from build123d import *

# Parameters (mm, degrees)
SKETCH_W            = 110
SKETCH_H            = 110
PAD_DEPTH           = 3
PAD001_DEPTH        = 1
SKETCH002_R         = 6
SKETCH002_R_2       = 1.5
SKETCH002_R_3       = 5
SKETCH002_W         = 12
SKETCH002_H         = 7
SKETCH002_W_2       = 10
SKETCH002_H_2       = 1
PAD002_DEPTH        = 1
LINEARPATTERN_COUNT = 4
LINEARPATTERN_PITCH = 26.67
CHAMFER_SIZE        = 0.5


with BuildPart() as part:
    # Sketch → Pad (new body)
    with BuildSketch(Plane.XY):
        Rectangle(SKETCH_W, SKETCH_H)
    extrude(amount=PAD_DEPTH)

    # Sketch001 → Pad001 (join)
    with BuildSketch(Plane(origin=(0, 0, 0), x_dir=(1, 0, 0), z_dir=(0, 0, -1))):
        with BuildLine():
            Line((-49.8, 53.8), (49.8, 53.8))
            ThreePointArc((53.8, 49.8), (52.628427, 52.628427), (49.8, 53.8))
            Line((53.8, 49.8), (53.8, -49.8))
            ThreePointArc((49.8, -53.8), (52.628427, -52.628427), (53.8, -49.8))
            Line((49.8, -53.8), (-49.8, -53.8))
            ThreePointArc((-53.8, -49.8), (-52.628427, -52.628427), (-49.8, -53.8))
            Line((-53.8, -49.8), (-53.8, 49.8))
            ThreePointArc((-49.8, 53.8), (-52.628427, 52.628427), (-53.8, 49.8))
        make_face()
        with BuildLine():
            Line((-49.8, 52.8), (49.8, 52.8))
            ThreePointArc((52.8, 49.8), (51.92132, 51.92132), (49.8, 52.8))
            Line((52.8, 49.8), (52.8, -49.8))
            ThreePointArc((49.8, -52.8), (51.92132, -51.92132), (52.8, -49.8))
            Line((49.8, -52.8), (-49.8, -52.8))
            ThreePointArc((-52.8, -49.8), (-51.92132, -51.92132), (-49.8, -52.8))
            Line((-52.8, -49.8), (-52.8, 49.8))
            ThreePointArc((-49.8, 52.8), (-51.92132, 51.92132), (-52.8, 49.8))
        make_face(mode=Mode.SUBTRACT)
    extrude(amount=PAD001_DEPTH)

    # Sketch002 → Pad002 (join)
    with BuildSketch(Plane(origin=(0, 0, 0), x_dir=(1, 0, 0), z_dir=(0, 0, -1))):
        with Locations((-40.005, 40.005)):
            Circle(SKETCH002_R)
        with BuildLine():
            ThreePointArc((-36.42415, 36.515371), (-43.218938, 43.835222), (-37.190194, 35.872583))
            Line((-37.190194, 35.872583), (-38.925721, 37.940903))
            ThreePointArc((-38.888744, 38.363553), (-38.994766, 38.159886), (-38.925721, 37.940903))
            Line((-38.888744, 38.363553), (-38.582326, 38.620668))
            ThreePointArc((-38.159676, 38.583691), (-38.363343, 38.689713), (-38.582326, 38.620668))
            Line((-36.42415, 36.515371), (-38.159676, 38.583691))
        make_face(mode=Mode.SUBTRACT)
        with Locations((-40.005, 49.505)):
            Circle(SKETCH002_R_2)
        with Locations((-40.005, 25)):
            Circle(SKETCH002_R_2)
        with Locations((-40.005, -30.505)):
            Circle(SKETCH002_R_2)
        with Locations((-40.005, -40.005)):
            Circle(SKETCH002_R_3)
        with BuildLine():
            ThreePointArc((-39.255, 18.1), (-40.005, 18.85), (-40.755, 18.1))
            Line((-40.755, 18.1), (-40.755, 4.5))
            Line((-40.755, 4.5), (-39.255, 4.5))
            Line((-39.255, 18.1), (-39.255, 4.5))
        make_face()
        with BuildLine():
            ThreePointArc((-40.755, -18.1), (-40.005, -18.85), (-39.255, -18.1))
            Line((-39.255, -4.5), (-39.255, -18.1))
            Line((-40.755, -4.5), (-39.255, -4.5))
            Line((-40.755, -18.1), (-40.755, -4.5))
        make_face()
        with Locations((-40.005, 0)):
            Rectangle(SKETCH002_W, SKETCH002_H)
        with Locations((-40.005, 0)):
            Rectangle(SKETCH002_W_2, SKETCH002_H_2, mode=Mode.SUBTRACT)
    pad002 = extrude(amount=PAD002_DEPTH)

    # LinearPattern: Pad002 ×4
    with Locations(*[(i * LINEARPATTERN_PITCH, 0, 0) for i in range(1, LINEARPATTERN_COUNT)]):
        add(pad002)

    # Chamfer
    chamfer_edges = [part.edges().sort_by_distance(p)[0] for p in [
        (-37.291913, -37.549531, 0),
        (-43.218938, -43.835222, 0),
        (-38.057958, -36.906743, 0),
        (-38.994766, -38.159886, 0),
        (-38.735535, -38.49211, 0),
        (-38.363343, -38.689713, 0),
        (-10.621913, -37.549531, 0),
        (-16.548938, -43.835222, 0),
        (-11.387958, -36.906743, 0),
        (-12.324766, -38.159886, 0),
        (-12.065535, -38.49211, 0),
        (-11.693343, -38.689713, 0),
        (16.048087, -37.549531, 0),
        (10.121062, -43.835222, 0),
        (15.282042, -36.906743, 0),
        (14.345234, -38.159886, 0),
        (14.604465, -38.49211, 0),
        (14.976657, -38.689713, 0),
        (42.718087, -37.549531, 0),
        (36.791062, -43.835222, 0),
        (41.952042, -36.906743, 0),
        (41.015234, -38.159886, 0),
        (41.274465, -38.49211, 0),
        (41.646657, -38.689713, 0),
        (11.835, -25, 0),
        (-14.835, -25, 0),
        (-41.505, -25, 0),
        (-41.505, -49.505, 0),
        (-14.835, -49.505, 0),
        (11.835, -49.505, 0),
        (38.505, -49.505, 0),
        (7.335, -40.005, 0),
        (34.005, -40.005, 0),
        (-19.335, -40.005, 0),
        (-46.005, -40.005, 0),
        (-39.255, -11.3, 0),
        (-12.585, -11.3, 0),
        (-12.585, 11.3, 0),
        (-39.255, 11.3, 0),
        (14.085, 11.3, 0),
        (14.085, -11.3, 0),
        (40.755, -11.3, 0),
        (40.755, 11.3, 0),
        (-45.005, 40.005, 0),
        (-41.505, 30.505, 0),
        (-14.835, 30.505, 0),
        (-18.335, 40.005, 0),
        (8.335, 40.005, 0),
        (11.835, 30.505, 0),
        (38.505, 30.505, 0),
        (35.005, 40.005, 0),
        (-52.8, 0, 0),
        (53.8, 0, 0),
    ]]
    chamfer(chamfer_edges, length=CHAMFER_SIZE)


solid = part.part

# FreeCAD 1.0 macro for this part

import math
import FreeCAD as App
import Part
import Sketcher

V = App.Vector
Q = App.Units.Quantity


def edges_at(feature, points):
    """Names of the edges that pass closest to the given points."""
    edges = feature.Shape.Edges
    near = lambda p: min(range(len(edges)), key=lambda i: edges[i].distToShape(Part.Vertex(*p))[0])
    return sorted({f"Edge{near(p) + 1}" for p in points})

doc = App.newDocument("Part")
params = doc.addObject("Spreadsheet::Sheet", "Params")
for row, (alias, value) in enumerate([
    ("sketch1_width", "110 mm"),
    ("pad1_length", "3 mm"),
    ("sketch2_radius", "4 mm"),
    ("sketch2_radius2", "3.000001 mm"),
    ("sketch2_width", "99.6 mm"),
    ("pad2_length", "1 mm"),
    ("sketch3_diameter", "12 mm"),
    ("sketch3_diameter2", "3 mm"),
    ("sketch3_diameter3", "10 mm"),
    ("sketch3_radius", "0.300001 mm"),
    ("sketch3_width", "12 mm"),
    ("pad3_length", "1 mm"),
    ("linearpattern_pitch", "26.67 mm"),
    ("chamfer_size", "0.5 mm"),
], start=1):
    params.set(f"A{row}", alias)
    params.set(f"B{row}", "=" + value)
    params.setAlias(f"B{row}", alias)

body = doc.addObject("PartDesign::Body", "Body")

# Sketch on XY plane
sketch1 = body.newObject("Sketcher::SketchObject", "Sketch")
sketch1.AttachmentSupport = (doc.getObject("XY_Plane"), [""])
sketch1.MapMode = "FlatFace"
sketch1.addGeometry(Part.LineSegment(V(-55, 55, 0), V(-55, -55, 0)), False)
sketch1.addGeometry(Part.LineSegment(V(-55, -55, 0), V(55, -55, 0)), False)
sketch1.addGeometry(Part.LineSegment(V(55, -55, 0), V(55, 55, 0)), False)
sketch1.addGeometry(Part.LineSegment(V(55, 55, 0), V(-55, 55, 0)), False)
sketch1.addConstraint(Sketcher.Constraint("Coincident", 0, 2, 1, 1))
sketch1.addConstraint(Sketcher.Constraint("Coincident", 1, 2, 2, 1))
sketch1.addConstraint(Sketcher.Constraint("Coincident", 2, 2, 3, 1))
sketch1.addConstraint(Sketcher.Constraint("Coincident", 3, 2, 0, 1))
sketch1.addConstraint(Sketcher.Constraint("Vertical", 0))
sketch1.addConstraint(Sketcher.Constraint("Horizontal", 1))
sketch1.addConstraint(Sketcher.Constraint("Vertical", 2))
sketch1.addConstraint(Sketcher.Constraint("Horizontal", 3))
sketch1.addConstraint(Sketcher.Constraint("Symmetric", 0, 2, 2, 2, -1, 1))
sketch1.addConstraint(Sketcher.Constraint("Equal", 3, 0))
sketch1.addConstraint(Sketcher.Constraint("DistanceX", 1, 1, 1, 2, 110.0))
sketch1.setExpression("Constraints[10]", "Params.sketch1_width")
pad1 = body.newObject("PartDesign::Pad", "Pad")
pad1.Profile = sketch1
pad1.setExpression("Length", "Params.pad1_length")

# Sketch on XY plane
sketch2 = body.newObject("Sketcher::SketchObject", "Sketch001")
sketch2.AttachmentSupport = (doc.getObject("XY_Plane"), [""])
sketch2.MapMode = "FlatFace"
sketch2.addGeometry(Part.LineSegment(V(49.8, -53.8, 0), V(-49.8, -53.8, 0)), False)
sketch2.addGeometry(Part.ArcOfCircle(Part.Circle(V(-49.8, -49.8, 0), V(0, 0, 1), 4), math.radians(-180), math.radians(-90)), False)
sketch2.addGeometry(Part.LineSegment(V(-53.8, -49.8, 0), V(-53.8, 49.8, 0)), False)
sketch2.addGeometry(Part.ArcOfCircle(Part.Circle(V(-49.8, 49.8, 0), V(0, 0, 1), 4), math.radians(90), math.radians(180)), False)
sketch2.addGeometry(Part.LineSegment(V(-49.8, 53.8, 0), V(49.8, 53.8, 0)), False)
sketch2.addGeometry(Part.ArcOfCircle(Part.Circle(V(49.8, 49.8, 0), V(0, 0, 1), 4), math.radians(0), math.radians(90)), False)
sketch2.addGeometry(Part.LineSegment(V(53.8, 49.8, 0), V(53.8, -49.8, 0)), False)
sketch2.addGeometry(Part.ArcOfCircle(Part.Circle(V(49.8, -49.8, 0), V(0, 0, 1), 4), math.radians(-90), math.radians(0)), False)
sketch2.addGeometry(Part.LineSegment(V(-49.8, -52.8, 0), V(49.8, -52.8, 0)), False)
sketch2.addGeometry(Part.ArcOfCircle(Part.Circle(V(49.8, -49.8, 0), V(0, 0, 1), 3), math.radians(-90), math.radians(0)), False)
sketch2.addGeometry(Part.LineSegment(V(52.8, -49.8, 0), V(52.8, 49.8, 0)), False)
sketch2.addGeometry(Part.ArcOfCircle(Part.Circle(V(49.8, 49.8, 0), V(0, 0, 1), 3), math.radians(0), math.radians(90)), False)
sketch2.addGeometry(Part.LineSegment(V(49.8, 52.8, 0), V(-49.8, 52.8, 0)), False)
sketch2.addGeometry(Part.ArcOfCircle(Part.Circle(V(-49.8, 49.8, 0), V(0, 0, 1), 3), math.radians(90), math.radians(180)), False)
sketch2.addGeometry(Part.LineSegment(V(-52.8, 49.8, 0), V(-52.8, -49.8, 0)), False)
sketch2.addGeometry(Part.ArcOfCircle(Part.Circle(V(-49.8, -49.8, 0), V(0, 0, 1), 3), math.radians(-180), math.radians(-90)), False)
sketch2.addConstraint(Sketcher.Constraint("Tangent", 0, 2, 1, 2))
sketch2.addConstraint(Sketcher.Constraint("Tangent", 1, 1, 2, 1))
sketch2.addConstraint(Sketcher.Constraint("Tangent", 2, 2, 3, 2))
sketch2.addConstraint(Sketcher.Constraint("Tangent", 3, 1, 4, 1))
sketch2.addConstraint(Sketcher.Constraint("Tangent", 4, 2, 5, 2))
sketch2.addConstraint(Sketcher.Constraint("Tangent", 5, 1, 6, 1))
sketch2.addConstraint(Sketcher.Constraint("Tangent", 6, 2, 7, 2))
sketch2.addConstraint(Sketcher.Constraint("Tangent", 7, 1, 0, 1))
sketch2.addConstraint(Sketcher.Constraint("Tangent", 8, 2, 9, 1))
sketch2.addConstraint(Sketcher.Constraint("Tangent", 9, 2, 10, 1))
sketch2.addConstraint(Sketcher.Constraint("Tangent", 10, 2, 11, 1))
sketch2.addConstraint(Sketcher.Constraint("Tangent", 11, 2, 12, 1))
sketch2.addConstraint(Sketcher.Constraint("Tangent", 12, 2, 13, 1))
sketch2.addConstraint(Sketcher.Constraint("Tangent", 13, 2, 14, 1))
sketch2.addConstraint(Sketcher.Constraint("Tangent", 14, 2, 15, 1))
sketch2.addConstraint(Sketcher.Constraint("Tangent", 15, 2, 8, 1))
sketch2.addConstraint(Sketcher.Constraint("Horizontal", 0))
sketch2.addConstraint(Sketcher.Constraint("Vertical", 2))
sketch2.addConstraint(Sketcher.Constraint("Horizontal", 4))
sketch2.addConstraint(Sketcher.Constraint("Vertical", 6))
sketch2.addConstraint(Sketcher.Constraint("Horizontal", 8))
sketch2.addConstraint(Sketcher.Constraint("Vertical", 10))
sketch2.addConstraint(Sketcher.Constraint("Horizontal", 12))
sketch2.addConstraint(Sketcher.Constraint("Vertical", 14))
sketch2.addConstraint(Sketcher.Constraint("Coincident", 9, 3, 7, 3))
sketch2.addConstraint(Sketcher.Constraint("Coincident", 11, 3, 5, 3))
sketch2.addConstraint(Sketcher.Constraint("Coincident", 13, 3, 3, 3))
sketch2.addConstraint(Sketcher.Constraint("Equal", 1, 3))
sketch2.addConstraint(Sketcher.Constraint("Equal", 3, 5))
sketch2.addConstraint(Sketcher.Constraint("Equal", 5, 7))
sketch2.addConstraint(Sketcher.Constraint("Equal", 13, 15))
sketch2.addConstraint(Sketcher.Constraint("Symmetric", 1, 3, 5, 3, -1, 1))
sketch2.addConstraint(Sketcher.Constraint("Equal", 12, 2))
sketch2.addConstraint(Sketcher.Constraint("Radius", 1, 4.0))
sketch2.addConstraint(Sketcher.Constraint("Radius", 9, 3.000001))
sketch2.addConstraint(Sketcher.Constraint("DistanceX", 0, 2, 0, 1, 99.6))
sketch2.setExpression("Constraints[33]", "Params.sketch2_radius")
sketch2.setExpression("Constraints[34]", "Params.sketch2_radius2")
sketch2.setExpression("Constraints[35]", "Params.sketch2_width")
pad2 = body.newObject("PartDesign::Pad", "Pad001")
pad2.Profile = sketch2
pad2.setExpression("Length", "Params.pad2_length")
pad2.Reversed = True

# Sketch on XY plane
sketch3 = body.newObject("Sketcher::SketchObject", "Sketch002")
sketch3.AttachmentSupport = (doc.getObject("XY_Plane"), [""])
sketch3.MapMode = "FlatFace"
sketch3.addGeometry(Part.Circle(V(-40.01, -40.01, 0), V(0, 0, 1), 6), False)
sketch3.addGeometry(Part.ArcOfCircle(Part.Circle(V(-40.01, -40, 0), V(0, 0, 1), 5), math.radians(56), math.radians(404)), False)
sketch3.addGeometry(Part.LineSegment(V(-36.42, -36.52, 0), V(-38.16, -38.58, 0)), False)
sketch3.addGeometry(Part.ArcOfCircle(Part.Circle(V(-38.39, -38.39, 0), V(0, 0, 1), 0.3), math.radians(-130), math.radians(-40)), False)
sketch3.addGeometry(Part.LineSegment(V(-38.58, -38.62, 0), V(-38.89, -38.36, 0)), False)
sketch3.addGeometry(Part.ArcOfCircle(Part.Circle(V(-38.7, -38.13, 0), V(0, 0, 1), 0.3), math.radians(140), math.radians(230)), False)
sketch3.addGeometry(Part.LineSegment(V(-38.93, -37.94, 0), V(-37.19, -35.87, 0)), False)
sketch3.addGeometry(Part.Circle(V(-40.01, -49.51, 0), V(0, 0, 1), 1.5), False)
sketch3.addGeometry(Part.Circle(V(-40.01, -25, 0), V(0, 0, 1), 1.5), False)
sketch3.addGeometry(Part.Circle(V(-40.01, 30.5, 0), V(0, 0, 1), 1.5), False)
sketch3.addGeometry(Part.Circle(V(-40.01, 40.01, 0), V(0, 0, 1), 5), False)
sketch3.addGeometry(Part.ArcOfCircle(Part.Circle(V(-40.01, -18.1, 0), V(0, 0, 1), 0.75), math.radians(180), math.radians(360)), False)
sketch3.addGeometry(Part.LineSegment(V(-40.76, -18.1, 0), V(-40.76, -4.5, 0)), False)
sketch3.addGeometry(Part.LineSegment(V(-40.76, -4.5, 0), V(-39.26, -4.5, 0)), False)
sketch3.addGeometry(Part.LineSegment(V(-39.26, -4.5, 0), V(-39.26, -18.1, 0)), False)
sketch3.addGeometry(Part.ArcOfCircle(Part.Circle(V(-40.01, 18.1, 0), V(0, 0, 1), 0.75), math.radians(0), math.radians(180)), False)
sketch3.addGeometry(Part.LineSegment(V(-39.26, 18.1, 0), V(-39.26, 4.5, 0)), False)
sketch3.addGeometry(Part.LineSegment(V(-39.26, 4.5, 0), V(-40.76, 4.5, 0)), False)
sketch3.addGeometry(Part.LineSegment(V(-40.76, 4.5, 0), V(-40.76, 18.1, 0)), False)
sketch3.addGeometry(Part.LineSegment(V(-46.01, -3.5, 0), V(-46.01, 3.5, 0)), False)
sketch3.addGeometry(Part.LineSegment(V(-46.01, 3.5, 0), V(-34.01, 3.5, 0)), False)
sketch3.addGeometry(Part.LineSegment(V(-34.01, 3.5, 0), V(-34.01, -3.5, 0)), False)
sketch3.addGeometry(Part.LineSegment(V(-34.01, -3.5, 0), V(-46.01, -3.5, 0)), False)
sketch3.addGeometry(Part.LineSegment(V(-35.01, 0.5, 0), V(-45.01, 0.5, 0)), False)
sketch3.addGeometry(Part.LineSegment(V(-45.01, 0.5, 0), V(-45.01, -0.5, 0)), False)
sketch3.addGeometry(Part.LineSegment(V(-45.01, -0.5, 0), V(-35.01, -0.5, 0)), False)
sketch3.addGeometry(Part.LineSegment(V(-35.01, -0.5, 0), V(-35.01, 0.5, 0)), False)
sketch3.addConstraint(Sketcher.Constraint("Coincident", 1, 2, 2, 1))
sketch3.addConstraint(Sketcher.Constraint("Tangent", 2, 2, 3, 2))
sketch3.addConstraint(Sketcher.Constraint("Tangent", 3, 1, 4, 1))
sketch3.addConstraint(Sketcher.Constraint("Coincident", 4, 2, 5, 2))
sketch3.addConstraint(Sketcher.Constraint("Tangent", 5, 1, 6, 1))
sketch3.addConstraint(Sketcher.Constraint("Coincident", 6, 2, 1, 1))
sketch3.addConstraint(Sketcher.Constraint("Tangent", 11, 1, 12, 1))
sketch3.addConstraint(Sketcher.Constraint("Coincident", 12, 2, 13, 1))
sketch3.addConstraint(Sketcher.Constraint("Coincident", 13, 2, 14, 1))
sketch3.addConstraint(Sketcher.Constraint("Tangent", 14, 2, 11, 2))
sketch3.addConstraint(Sketcher.Constraint("Tangent", 15, 1, 16, 1))
sketch3.addConstraint(Sketcher.Constraint("Coincident", 16, 2, 17, 1))
sketch3.addConstraint(Sketcher.Constraint("Coincident", 17, 2, 18, 1))
sketch3.addConstraint(Sketcher.Constraint("Tangent", 18, 2, 15, 2))
sketch3.addConstraint(Sketcher.Constraint("Coincident", 19, 2, 20, 1))
sketch3.addConstraint(Sketcher.Constraint("Coincident", 20, 2, 21, 1))
sketch3.addConstraint(Sketcher.Constraint("Coincident", 21, 2, 22, 1))
sketch3.addConstraint(Sketcher.Constraint("Coincident", 22, 2, 19, 1))
sketch3.addConstraint(Sketcher.Constraint("Coincident", 23, 2, 24, 1))
sketch3.addConstraint(Sketcher.Constraint("Coincident", 24, 2, 25, 1))
sketch3.addConstraint(Sketcher.Constraint("Coincident", 25, 2, 26, 1))
sketch3.addConstraint(Sketcher.Constraint("Coincident", 26, 2, 23, 1))
sketch3.addConstraint(Sketcher.Constraint("Vertical", 12))
sketch3.addConstraint(Sketcher.Constraint("Horizontal", 13))
sketch3.addConstraint(Sketcher.Constraint("Vertical", 14))
sketch3.addConstraint(Sketcher.Constraint("Vertical", 16))
sketch3.addConstraint(Sketcher.Constraint("Horizontal", 17))
sketch3.addConstraint(Sketcher.Constraint("Vertical", 18))
sketch3.addConstraint(Sketcher.Constraint("Vertical", 19))
sketch3.addConstraint(Sketcher.Constraint("Horizontal", 20))
sketch3.addConstraint(Sketcher.Constraint("Vertical", 21))
sketch3.addConstraint(Sketcher.Constraint("Horizontal", 22))
sketch3.addConstraint(Sketcher.Constraint("Horizontal", 23))
sketch3.addConstraint(Sketcher.Constraint("Vertical", 24))
sketch3.addConstraint(Sketcher.Constraint("Horizontal", 25))
sketch3.addConstraint(Sketcher.Constraint("Vertical", 26))
sketch3.addConstraint(Sketcher.Constraint("Coincident", 1, 3, 0, 3))
sketch3.addConstraint(Sketcher.Constraint("Equal", 3, 5))
sketch3.addConstraint(Sketcher.Constraint("Equal", 7, 8))
sketch3.addConstraint(Sketcher.Constraint("Equal", 8, 9))
sketch3.addConstraint(Sketcher.Constraint("Equal", 1, 10))
sketch3.addConstraint(Sketcher.Constraint("Equal", 11, 15))
sketch3.addConstraint(Sketcher.Constraint("Symmetric", 0, 3, 10, 3, -1))
sketch3.addConstraint(Sketcher.Constraint("Symmetric", 11, 3, 15, 3, -1))
sketch3.addConstraint(Sketcher.Constraint("Perpendicular", 2, 4))
sketch3.addConstraint(Sketcher.Constraint("Perpendicular", 4, 6))
sketch3.addConstraint(Sketcher.Constraint("Vertical", 0, 3, 7, 3))
sketch3.addConstraint(Sketcher.Constraint("Vertical", 7, 3, 8, 3))
sketch3.addConstraint(Sketcher.Constraint("Vertical", 8, 3, 9, 3))
sketch3.addConstraint(Sketcher.Constraint("Vertical", 10, 3, 11, 3))
sketch3.addConstraint(Sketcher.Constraint("Equal", 14, 16))
sketch3.addConstraint(Sketcher.Constraint("Equal", 2, 6))
sketch3.addConstraint(Sketcher.Constraint("Diameter", 0, 12.0))
sketch3.addConstraint(Sketcher.Constraint("Diameter", 7, 3.0))
sketch3.addConstraint(Sketcher.Constraint("Diameter", 10, 10.0))
sketch3.addConstraint(Sketcher.Constraint("Radius", 3, 0.300001))
sketch3.addConstraint(Sketcher.Constraint("DistanceX", 20, 1, 20, 2, 12.0))
sketch3.addConstraint(Sketcher.Constraint("DistanceX", 23, 2, 23, 1, 10.0))
sketch3.addConstraint(Sketcher.Constraint("DistanceY", 19, 1, 19, 2, 7.0))
sketch3.addConstraint(Sketcher.Constraint("DistanceY", 24, 2, 24, 1, 1.0))
sketch3.addConstraint(Sketcher.Constraint("Angle", 2, Q("-129.999991 deg")))
sketch3.addConstraint(Sketcher.Constraint("Radius", 11, 0.75))
sketch3.addConstraint(Sketcher.Constraint("DistanceY", 12, 1, 12, 2, 13.6))
sketch3.addConstraint(Sketcher.Constraint("DistanceY", 8, 3, -1, 1, 25.0))
sketch3.addConstraint(Sketcher.Constraint("DistanceY", 13, 2, 16, 2, 9.0))
sketch3.addConstraint(Sketcher.Constraint("DistanceY", 19, 2, 17, 2, 1.0))
sketch3.addConstraint(Sketcher.Constraint("DistanceX", 19, 2, 23, 2, 1.0))
sketch3.addConstraint(Sketcher.Constraint("DistanceY", 23, 2, 19, 2, 3.0))
sketch3.addConstraint(Sketcher.Constraint("Distance", 2, 2.7))
sketch3.addConstraint(Sketcher.Constraint("Distance", 4, 0.4))
sketch3.addConstraint(Sketcher.Constraint("DistanceY", 7, 3, 0, 3, 9.5))
sketch3.addConstraint(Sketcher.Constraint("DistanceY", 9, 3, 10, 3, 9.5))
sketch3.addConstraint(Sketcher.Constraint("DistanceY", 1, 3, 9, 3, 70.509998))
sketch3.addConstraint(Sketcher.Constraint("DistanceX", 19, 2, 17, 2, 5.25))
sketch3.addConstraint(Sketcher.Constraint("DistanceX", 0, 3, -1, 1, 40.005))
sketch3.addConstraint(Sketcher.Constraint("DistanceX", 3, 3, -1, 1, 38.38949))
sketch3.setExpression("Constraints[52]", "Params.sketch3_diameter")
sketch3.setExpression("Constraints[53]", "Params.sketch3_diameter2")
sketch3.setExpression("Constraints[54]", "Params.sketch3_diameter3")
sketch3.setExpression("Constraints[55]", "Params.sketch3_radius")
sketch3.setExpression("Constraints[56]", "Params.sketch3_width")
pad3 = body.newObject("PartDesign::Pad", "Pad002")
pad3.Profile = sketch3
pad3.setExpression("Length", "Params.pad3_length")
pad3.Reversed = True
doc.recompute()

linearpattern = body.newObject("PartDesign::LinearPattern", "LinearPattern")
linearpattern.Originals = [pad3]
linearpattern.Direction = (doc.getObject("X_Axis"), [""])
linearpattern.Mode = "offset"
linearpattern.setExpression("Offset", "Params.linearpattern_pitch")
linearpattern.Occurrences = 4
body.Tip = linearpattern
doc.recompute()

chamfer = body.newObject("PartDesign::Chamfer", "Chamfer")
chamfer.Base = (linearpattern, edges_at(linearpattern, [
    (-37.292, -37.55, 0),
    (-43.219, -43.835, 0),
    (-38.058, -36.907, 0),
    (-38.995, -38.16, 0),
    (-38.736, -38.492, 0),
    (-38.363, -38.69, 0),
    (-10.622, -37.55, 0),
    (-16.549, -43.835, 0),
    (-11.388, -36.907, 0),
    (-12.325, -38.16, 0),
    (-12.066, -38.492, 0),
    (-11.693, -38.69, 0),
    (16.048, -37.55, 0),
    (10.121, -43.835, 0),
    (15.282, -36.907, 0),
    (14.345, -38.16, 0),
    (14.604, -38.492, 0),
    (14.977, -38.69, 0),
    (42.718, -37.55, 0),
    (36.791, -43.835, 0),
    (41.952, -36.907, 0),
    (41.015, -38.16, 0),
    (41.274, -38.492, 0),
    (41.647, -38.69, 0),
    (11.835, -25, 0),
    (-14.835, -25, 0),
    (-41.505, -25, 0),
    (-41.505, -49.505, 0),
    (-14.835, -49.505, 0),
    (11.835, -49.505, 0),
    (38.505, -49.505, 0),
    (7.335, -40.005, 0),
    (34.005, -40.005, 0),
    (-19.335, -40.005, 0),
    (-46.005, -40.005, 0),
    (-39.255, -11.3, 0),
    (-12.585, -11.3, 0),
    (-12.585, 11.3, 0),
    (-39.255, 11.3, 0),
    (14.085, 11.3, 0),
    (14.085, -11.3, 0),
    (40.755, -11.3, 0),
    (40.755, 11.3, 0),
    (-45.005, 40.005, 0),
    (-41.505, 30.505, 0),
    (-14.835, 30.505, 0),
    (-18.335, 40.005, 0),
    (8.335, 40.005, 0),
    (11.835, 30.505, 0),
    (38.505, 30.505, 0),
    (35.005, 40.005, 0),
    (-52.8, 0, 0),
    (53.8, 0, 0),
]))
chamfer.setExpression("Size", "Params.chamfer_size")

doc.recompute()
